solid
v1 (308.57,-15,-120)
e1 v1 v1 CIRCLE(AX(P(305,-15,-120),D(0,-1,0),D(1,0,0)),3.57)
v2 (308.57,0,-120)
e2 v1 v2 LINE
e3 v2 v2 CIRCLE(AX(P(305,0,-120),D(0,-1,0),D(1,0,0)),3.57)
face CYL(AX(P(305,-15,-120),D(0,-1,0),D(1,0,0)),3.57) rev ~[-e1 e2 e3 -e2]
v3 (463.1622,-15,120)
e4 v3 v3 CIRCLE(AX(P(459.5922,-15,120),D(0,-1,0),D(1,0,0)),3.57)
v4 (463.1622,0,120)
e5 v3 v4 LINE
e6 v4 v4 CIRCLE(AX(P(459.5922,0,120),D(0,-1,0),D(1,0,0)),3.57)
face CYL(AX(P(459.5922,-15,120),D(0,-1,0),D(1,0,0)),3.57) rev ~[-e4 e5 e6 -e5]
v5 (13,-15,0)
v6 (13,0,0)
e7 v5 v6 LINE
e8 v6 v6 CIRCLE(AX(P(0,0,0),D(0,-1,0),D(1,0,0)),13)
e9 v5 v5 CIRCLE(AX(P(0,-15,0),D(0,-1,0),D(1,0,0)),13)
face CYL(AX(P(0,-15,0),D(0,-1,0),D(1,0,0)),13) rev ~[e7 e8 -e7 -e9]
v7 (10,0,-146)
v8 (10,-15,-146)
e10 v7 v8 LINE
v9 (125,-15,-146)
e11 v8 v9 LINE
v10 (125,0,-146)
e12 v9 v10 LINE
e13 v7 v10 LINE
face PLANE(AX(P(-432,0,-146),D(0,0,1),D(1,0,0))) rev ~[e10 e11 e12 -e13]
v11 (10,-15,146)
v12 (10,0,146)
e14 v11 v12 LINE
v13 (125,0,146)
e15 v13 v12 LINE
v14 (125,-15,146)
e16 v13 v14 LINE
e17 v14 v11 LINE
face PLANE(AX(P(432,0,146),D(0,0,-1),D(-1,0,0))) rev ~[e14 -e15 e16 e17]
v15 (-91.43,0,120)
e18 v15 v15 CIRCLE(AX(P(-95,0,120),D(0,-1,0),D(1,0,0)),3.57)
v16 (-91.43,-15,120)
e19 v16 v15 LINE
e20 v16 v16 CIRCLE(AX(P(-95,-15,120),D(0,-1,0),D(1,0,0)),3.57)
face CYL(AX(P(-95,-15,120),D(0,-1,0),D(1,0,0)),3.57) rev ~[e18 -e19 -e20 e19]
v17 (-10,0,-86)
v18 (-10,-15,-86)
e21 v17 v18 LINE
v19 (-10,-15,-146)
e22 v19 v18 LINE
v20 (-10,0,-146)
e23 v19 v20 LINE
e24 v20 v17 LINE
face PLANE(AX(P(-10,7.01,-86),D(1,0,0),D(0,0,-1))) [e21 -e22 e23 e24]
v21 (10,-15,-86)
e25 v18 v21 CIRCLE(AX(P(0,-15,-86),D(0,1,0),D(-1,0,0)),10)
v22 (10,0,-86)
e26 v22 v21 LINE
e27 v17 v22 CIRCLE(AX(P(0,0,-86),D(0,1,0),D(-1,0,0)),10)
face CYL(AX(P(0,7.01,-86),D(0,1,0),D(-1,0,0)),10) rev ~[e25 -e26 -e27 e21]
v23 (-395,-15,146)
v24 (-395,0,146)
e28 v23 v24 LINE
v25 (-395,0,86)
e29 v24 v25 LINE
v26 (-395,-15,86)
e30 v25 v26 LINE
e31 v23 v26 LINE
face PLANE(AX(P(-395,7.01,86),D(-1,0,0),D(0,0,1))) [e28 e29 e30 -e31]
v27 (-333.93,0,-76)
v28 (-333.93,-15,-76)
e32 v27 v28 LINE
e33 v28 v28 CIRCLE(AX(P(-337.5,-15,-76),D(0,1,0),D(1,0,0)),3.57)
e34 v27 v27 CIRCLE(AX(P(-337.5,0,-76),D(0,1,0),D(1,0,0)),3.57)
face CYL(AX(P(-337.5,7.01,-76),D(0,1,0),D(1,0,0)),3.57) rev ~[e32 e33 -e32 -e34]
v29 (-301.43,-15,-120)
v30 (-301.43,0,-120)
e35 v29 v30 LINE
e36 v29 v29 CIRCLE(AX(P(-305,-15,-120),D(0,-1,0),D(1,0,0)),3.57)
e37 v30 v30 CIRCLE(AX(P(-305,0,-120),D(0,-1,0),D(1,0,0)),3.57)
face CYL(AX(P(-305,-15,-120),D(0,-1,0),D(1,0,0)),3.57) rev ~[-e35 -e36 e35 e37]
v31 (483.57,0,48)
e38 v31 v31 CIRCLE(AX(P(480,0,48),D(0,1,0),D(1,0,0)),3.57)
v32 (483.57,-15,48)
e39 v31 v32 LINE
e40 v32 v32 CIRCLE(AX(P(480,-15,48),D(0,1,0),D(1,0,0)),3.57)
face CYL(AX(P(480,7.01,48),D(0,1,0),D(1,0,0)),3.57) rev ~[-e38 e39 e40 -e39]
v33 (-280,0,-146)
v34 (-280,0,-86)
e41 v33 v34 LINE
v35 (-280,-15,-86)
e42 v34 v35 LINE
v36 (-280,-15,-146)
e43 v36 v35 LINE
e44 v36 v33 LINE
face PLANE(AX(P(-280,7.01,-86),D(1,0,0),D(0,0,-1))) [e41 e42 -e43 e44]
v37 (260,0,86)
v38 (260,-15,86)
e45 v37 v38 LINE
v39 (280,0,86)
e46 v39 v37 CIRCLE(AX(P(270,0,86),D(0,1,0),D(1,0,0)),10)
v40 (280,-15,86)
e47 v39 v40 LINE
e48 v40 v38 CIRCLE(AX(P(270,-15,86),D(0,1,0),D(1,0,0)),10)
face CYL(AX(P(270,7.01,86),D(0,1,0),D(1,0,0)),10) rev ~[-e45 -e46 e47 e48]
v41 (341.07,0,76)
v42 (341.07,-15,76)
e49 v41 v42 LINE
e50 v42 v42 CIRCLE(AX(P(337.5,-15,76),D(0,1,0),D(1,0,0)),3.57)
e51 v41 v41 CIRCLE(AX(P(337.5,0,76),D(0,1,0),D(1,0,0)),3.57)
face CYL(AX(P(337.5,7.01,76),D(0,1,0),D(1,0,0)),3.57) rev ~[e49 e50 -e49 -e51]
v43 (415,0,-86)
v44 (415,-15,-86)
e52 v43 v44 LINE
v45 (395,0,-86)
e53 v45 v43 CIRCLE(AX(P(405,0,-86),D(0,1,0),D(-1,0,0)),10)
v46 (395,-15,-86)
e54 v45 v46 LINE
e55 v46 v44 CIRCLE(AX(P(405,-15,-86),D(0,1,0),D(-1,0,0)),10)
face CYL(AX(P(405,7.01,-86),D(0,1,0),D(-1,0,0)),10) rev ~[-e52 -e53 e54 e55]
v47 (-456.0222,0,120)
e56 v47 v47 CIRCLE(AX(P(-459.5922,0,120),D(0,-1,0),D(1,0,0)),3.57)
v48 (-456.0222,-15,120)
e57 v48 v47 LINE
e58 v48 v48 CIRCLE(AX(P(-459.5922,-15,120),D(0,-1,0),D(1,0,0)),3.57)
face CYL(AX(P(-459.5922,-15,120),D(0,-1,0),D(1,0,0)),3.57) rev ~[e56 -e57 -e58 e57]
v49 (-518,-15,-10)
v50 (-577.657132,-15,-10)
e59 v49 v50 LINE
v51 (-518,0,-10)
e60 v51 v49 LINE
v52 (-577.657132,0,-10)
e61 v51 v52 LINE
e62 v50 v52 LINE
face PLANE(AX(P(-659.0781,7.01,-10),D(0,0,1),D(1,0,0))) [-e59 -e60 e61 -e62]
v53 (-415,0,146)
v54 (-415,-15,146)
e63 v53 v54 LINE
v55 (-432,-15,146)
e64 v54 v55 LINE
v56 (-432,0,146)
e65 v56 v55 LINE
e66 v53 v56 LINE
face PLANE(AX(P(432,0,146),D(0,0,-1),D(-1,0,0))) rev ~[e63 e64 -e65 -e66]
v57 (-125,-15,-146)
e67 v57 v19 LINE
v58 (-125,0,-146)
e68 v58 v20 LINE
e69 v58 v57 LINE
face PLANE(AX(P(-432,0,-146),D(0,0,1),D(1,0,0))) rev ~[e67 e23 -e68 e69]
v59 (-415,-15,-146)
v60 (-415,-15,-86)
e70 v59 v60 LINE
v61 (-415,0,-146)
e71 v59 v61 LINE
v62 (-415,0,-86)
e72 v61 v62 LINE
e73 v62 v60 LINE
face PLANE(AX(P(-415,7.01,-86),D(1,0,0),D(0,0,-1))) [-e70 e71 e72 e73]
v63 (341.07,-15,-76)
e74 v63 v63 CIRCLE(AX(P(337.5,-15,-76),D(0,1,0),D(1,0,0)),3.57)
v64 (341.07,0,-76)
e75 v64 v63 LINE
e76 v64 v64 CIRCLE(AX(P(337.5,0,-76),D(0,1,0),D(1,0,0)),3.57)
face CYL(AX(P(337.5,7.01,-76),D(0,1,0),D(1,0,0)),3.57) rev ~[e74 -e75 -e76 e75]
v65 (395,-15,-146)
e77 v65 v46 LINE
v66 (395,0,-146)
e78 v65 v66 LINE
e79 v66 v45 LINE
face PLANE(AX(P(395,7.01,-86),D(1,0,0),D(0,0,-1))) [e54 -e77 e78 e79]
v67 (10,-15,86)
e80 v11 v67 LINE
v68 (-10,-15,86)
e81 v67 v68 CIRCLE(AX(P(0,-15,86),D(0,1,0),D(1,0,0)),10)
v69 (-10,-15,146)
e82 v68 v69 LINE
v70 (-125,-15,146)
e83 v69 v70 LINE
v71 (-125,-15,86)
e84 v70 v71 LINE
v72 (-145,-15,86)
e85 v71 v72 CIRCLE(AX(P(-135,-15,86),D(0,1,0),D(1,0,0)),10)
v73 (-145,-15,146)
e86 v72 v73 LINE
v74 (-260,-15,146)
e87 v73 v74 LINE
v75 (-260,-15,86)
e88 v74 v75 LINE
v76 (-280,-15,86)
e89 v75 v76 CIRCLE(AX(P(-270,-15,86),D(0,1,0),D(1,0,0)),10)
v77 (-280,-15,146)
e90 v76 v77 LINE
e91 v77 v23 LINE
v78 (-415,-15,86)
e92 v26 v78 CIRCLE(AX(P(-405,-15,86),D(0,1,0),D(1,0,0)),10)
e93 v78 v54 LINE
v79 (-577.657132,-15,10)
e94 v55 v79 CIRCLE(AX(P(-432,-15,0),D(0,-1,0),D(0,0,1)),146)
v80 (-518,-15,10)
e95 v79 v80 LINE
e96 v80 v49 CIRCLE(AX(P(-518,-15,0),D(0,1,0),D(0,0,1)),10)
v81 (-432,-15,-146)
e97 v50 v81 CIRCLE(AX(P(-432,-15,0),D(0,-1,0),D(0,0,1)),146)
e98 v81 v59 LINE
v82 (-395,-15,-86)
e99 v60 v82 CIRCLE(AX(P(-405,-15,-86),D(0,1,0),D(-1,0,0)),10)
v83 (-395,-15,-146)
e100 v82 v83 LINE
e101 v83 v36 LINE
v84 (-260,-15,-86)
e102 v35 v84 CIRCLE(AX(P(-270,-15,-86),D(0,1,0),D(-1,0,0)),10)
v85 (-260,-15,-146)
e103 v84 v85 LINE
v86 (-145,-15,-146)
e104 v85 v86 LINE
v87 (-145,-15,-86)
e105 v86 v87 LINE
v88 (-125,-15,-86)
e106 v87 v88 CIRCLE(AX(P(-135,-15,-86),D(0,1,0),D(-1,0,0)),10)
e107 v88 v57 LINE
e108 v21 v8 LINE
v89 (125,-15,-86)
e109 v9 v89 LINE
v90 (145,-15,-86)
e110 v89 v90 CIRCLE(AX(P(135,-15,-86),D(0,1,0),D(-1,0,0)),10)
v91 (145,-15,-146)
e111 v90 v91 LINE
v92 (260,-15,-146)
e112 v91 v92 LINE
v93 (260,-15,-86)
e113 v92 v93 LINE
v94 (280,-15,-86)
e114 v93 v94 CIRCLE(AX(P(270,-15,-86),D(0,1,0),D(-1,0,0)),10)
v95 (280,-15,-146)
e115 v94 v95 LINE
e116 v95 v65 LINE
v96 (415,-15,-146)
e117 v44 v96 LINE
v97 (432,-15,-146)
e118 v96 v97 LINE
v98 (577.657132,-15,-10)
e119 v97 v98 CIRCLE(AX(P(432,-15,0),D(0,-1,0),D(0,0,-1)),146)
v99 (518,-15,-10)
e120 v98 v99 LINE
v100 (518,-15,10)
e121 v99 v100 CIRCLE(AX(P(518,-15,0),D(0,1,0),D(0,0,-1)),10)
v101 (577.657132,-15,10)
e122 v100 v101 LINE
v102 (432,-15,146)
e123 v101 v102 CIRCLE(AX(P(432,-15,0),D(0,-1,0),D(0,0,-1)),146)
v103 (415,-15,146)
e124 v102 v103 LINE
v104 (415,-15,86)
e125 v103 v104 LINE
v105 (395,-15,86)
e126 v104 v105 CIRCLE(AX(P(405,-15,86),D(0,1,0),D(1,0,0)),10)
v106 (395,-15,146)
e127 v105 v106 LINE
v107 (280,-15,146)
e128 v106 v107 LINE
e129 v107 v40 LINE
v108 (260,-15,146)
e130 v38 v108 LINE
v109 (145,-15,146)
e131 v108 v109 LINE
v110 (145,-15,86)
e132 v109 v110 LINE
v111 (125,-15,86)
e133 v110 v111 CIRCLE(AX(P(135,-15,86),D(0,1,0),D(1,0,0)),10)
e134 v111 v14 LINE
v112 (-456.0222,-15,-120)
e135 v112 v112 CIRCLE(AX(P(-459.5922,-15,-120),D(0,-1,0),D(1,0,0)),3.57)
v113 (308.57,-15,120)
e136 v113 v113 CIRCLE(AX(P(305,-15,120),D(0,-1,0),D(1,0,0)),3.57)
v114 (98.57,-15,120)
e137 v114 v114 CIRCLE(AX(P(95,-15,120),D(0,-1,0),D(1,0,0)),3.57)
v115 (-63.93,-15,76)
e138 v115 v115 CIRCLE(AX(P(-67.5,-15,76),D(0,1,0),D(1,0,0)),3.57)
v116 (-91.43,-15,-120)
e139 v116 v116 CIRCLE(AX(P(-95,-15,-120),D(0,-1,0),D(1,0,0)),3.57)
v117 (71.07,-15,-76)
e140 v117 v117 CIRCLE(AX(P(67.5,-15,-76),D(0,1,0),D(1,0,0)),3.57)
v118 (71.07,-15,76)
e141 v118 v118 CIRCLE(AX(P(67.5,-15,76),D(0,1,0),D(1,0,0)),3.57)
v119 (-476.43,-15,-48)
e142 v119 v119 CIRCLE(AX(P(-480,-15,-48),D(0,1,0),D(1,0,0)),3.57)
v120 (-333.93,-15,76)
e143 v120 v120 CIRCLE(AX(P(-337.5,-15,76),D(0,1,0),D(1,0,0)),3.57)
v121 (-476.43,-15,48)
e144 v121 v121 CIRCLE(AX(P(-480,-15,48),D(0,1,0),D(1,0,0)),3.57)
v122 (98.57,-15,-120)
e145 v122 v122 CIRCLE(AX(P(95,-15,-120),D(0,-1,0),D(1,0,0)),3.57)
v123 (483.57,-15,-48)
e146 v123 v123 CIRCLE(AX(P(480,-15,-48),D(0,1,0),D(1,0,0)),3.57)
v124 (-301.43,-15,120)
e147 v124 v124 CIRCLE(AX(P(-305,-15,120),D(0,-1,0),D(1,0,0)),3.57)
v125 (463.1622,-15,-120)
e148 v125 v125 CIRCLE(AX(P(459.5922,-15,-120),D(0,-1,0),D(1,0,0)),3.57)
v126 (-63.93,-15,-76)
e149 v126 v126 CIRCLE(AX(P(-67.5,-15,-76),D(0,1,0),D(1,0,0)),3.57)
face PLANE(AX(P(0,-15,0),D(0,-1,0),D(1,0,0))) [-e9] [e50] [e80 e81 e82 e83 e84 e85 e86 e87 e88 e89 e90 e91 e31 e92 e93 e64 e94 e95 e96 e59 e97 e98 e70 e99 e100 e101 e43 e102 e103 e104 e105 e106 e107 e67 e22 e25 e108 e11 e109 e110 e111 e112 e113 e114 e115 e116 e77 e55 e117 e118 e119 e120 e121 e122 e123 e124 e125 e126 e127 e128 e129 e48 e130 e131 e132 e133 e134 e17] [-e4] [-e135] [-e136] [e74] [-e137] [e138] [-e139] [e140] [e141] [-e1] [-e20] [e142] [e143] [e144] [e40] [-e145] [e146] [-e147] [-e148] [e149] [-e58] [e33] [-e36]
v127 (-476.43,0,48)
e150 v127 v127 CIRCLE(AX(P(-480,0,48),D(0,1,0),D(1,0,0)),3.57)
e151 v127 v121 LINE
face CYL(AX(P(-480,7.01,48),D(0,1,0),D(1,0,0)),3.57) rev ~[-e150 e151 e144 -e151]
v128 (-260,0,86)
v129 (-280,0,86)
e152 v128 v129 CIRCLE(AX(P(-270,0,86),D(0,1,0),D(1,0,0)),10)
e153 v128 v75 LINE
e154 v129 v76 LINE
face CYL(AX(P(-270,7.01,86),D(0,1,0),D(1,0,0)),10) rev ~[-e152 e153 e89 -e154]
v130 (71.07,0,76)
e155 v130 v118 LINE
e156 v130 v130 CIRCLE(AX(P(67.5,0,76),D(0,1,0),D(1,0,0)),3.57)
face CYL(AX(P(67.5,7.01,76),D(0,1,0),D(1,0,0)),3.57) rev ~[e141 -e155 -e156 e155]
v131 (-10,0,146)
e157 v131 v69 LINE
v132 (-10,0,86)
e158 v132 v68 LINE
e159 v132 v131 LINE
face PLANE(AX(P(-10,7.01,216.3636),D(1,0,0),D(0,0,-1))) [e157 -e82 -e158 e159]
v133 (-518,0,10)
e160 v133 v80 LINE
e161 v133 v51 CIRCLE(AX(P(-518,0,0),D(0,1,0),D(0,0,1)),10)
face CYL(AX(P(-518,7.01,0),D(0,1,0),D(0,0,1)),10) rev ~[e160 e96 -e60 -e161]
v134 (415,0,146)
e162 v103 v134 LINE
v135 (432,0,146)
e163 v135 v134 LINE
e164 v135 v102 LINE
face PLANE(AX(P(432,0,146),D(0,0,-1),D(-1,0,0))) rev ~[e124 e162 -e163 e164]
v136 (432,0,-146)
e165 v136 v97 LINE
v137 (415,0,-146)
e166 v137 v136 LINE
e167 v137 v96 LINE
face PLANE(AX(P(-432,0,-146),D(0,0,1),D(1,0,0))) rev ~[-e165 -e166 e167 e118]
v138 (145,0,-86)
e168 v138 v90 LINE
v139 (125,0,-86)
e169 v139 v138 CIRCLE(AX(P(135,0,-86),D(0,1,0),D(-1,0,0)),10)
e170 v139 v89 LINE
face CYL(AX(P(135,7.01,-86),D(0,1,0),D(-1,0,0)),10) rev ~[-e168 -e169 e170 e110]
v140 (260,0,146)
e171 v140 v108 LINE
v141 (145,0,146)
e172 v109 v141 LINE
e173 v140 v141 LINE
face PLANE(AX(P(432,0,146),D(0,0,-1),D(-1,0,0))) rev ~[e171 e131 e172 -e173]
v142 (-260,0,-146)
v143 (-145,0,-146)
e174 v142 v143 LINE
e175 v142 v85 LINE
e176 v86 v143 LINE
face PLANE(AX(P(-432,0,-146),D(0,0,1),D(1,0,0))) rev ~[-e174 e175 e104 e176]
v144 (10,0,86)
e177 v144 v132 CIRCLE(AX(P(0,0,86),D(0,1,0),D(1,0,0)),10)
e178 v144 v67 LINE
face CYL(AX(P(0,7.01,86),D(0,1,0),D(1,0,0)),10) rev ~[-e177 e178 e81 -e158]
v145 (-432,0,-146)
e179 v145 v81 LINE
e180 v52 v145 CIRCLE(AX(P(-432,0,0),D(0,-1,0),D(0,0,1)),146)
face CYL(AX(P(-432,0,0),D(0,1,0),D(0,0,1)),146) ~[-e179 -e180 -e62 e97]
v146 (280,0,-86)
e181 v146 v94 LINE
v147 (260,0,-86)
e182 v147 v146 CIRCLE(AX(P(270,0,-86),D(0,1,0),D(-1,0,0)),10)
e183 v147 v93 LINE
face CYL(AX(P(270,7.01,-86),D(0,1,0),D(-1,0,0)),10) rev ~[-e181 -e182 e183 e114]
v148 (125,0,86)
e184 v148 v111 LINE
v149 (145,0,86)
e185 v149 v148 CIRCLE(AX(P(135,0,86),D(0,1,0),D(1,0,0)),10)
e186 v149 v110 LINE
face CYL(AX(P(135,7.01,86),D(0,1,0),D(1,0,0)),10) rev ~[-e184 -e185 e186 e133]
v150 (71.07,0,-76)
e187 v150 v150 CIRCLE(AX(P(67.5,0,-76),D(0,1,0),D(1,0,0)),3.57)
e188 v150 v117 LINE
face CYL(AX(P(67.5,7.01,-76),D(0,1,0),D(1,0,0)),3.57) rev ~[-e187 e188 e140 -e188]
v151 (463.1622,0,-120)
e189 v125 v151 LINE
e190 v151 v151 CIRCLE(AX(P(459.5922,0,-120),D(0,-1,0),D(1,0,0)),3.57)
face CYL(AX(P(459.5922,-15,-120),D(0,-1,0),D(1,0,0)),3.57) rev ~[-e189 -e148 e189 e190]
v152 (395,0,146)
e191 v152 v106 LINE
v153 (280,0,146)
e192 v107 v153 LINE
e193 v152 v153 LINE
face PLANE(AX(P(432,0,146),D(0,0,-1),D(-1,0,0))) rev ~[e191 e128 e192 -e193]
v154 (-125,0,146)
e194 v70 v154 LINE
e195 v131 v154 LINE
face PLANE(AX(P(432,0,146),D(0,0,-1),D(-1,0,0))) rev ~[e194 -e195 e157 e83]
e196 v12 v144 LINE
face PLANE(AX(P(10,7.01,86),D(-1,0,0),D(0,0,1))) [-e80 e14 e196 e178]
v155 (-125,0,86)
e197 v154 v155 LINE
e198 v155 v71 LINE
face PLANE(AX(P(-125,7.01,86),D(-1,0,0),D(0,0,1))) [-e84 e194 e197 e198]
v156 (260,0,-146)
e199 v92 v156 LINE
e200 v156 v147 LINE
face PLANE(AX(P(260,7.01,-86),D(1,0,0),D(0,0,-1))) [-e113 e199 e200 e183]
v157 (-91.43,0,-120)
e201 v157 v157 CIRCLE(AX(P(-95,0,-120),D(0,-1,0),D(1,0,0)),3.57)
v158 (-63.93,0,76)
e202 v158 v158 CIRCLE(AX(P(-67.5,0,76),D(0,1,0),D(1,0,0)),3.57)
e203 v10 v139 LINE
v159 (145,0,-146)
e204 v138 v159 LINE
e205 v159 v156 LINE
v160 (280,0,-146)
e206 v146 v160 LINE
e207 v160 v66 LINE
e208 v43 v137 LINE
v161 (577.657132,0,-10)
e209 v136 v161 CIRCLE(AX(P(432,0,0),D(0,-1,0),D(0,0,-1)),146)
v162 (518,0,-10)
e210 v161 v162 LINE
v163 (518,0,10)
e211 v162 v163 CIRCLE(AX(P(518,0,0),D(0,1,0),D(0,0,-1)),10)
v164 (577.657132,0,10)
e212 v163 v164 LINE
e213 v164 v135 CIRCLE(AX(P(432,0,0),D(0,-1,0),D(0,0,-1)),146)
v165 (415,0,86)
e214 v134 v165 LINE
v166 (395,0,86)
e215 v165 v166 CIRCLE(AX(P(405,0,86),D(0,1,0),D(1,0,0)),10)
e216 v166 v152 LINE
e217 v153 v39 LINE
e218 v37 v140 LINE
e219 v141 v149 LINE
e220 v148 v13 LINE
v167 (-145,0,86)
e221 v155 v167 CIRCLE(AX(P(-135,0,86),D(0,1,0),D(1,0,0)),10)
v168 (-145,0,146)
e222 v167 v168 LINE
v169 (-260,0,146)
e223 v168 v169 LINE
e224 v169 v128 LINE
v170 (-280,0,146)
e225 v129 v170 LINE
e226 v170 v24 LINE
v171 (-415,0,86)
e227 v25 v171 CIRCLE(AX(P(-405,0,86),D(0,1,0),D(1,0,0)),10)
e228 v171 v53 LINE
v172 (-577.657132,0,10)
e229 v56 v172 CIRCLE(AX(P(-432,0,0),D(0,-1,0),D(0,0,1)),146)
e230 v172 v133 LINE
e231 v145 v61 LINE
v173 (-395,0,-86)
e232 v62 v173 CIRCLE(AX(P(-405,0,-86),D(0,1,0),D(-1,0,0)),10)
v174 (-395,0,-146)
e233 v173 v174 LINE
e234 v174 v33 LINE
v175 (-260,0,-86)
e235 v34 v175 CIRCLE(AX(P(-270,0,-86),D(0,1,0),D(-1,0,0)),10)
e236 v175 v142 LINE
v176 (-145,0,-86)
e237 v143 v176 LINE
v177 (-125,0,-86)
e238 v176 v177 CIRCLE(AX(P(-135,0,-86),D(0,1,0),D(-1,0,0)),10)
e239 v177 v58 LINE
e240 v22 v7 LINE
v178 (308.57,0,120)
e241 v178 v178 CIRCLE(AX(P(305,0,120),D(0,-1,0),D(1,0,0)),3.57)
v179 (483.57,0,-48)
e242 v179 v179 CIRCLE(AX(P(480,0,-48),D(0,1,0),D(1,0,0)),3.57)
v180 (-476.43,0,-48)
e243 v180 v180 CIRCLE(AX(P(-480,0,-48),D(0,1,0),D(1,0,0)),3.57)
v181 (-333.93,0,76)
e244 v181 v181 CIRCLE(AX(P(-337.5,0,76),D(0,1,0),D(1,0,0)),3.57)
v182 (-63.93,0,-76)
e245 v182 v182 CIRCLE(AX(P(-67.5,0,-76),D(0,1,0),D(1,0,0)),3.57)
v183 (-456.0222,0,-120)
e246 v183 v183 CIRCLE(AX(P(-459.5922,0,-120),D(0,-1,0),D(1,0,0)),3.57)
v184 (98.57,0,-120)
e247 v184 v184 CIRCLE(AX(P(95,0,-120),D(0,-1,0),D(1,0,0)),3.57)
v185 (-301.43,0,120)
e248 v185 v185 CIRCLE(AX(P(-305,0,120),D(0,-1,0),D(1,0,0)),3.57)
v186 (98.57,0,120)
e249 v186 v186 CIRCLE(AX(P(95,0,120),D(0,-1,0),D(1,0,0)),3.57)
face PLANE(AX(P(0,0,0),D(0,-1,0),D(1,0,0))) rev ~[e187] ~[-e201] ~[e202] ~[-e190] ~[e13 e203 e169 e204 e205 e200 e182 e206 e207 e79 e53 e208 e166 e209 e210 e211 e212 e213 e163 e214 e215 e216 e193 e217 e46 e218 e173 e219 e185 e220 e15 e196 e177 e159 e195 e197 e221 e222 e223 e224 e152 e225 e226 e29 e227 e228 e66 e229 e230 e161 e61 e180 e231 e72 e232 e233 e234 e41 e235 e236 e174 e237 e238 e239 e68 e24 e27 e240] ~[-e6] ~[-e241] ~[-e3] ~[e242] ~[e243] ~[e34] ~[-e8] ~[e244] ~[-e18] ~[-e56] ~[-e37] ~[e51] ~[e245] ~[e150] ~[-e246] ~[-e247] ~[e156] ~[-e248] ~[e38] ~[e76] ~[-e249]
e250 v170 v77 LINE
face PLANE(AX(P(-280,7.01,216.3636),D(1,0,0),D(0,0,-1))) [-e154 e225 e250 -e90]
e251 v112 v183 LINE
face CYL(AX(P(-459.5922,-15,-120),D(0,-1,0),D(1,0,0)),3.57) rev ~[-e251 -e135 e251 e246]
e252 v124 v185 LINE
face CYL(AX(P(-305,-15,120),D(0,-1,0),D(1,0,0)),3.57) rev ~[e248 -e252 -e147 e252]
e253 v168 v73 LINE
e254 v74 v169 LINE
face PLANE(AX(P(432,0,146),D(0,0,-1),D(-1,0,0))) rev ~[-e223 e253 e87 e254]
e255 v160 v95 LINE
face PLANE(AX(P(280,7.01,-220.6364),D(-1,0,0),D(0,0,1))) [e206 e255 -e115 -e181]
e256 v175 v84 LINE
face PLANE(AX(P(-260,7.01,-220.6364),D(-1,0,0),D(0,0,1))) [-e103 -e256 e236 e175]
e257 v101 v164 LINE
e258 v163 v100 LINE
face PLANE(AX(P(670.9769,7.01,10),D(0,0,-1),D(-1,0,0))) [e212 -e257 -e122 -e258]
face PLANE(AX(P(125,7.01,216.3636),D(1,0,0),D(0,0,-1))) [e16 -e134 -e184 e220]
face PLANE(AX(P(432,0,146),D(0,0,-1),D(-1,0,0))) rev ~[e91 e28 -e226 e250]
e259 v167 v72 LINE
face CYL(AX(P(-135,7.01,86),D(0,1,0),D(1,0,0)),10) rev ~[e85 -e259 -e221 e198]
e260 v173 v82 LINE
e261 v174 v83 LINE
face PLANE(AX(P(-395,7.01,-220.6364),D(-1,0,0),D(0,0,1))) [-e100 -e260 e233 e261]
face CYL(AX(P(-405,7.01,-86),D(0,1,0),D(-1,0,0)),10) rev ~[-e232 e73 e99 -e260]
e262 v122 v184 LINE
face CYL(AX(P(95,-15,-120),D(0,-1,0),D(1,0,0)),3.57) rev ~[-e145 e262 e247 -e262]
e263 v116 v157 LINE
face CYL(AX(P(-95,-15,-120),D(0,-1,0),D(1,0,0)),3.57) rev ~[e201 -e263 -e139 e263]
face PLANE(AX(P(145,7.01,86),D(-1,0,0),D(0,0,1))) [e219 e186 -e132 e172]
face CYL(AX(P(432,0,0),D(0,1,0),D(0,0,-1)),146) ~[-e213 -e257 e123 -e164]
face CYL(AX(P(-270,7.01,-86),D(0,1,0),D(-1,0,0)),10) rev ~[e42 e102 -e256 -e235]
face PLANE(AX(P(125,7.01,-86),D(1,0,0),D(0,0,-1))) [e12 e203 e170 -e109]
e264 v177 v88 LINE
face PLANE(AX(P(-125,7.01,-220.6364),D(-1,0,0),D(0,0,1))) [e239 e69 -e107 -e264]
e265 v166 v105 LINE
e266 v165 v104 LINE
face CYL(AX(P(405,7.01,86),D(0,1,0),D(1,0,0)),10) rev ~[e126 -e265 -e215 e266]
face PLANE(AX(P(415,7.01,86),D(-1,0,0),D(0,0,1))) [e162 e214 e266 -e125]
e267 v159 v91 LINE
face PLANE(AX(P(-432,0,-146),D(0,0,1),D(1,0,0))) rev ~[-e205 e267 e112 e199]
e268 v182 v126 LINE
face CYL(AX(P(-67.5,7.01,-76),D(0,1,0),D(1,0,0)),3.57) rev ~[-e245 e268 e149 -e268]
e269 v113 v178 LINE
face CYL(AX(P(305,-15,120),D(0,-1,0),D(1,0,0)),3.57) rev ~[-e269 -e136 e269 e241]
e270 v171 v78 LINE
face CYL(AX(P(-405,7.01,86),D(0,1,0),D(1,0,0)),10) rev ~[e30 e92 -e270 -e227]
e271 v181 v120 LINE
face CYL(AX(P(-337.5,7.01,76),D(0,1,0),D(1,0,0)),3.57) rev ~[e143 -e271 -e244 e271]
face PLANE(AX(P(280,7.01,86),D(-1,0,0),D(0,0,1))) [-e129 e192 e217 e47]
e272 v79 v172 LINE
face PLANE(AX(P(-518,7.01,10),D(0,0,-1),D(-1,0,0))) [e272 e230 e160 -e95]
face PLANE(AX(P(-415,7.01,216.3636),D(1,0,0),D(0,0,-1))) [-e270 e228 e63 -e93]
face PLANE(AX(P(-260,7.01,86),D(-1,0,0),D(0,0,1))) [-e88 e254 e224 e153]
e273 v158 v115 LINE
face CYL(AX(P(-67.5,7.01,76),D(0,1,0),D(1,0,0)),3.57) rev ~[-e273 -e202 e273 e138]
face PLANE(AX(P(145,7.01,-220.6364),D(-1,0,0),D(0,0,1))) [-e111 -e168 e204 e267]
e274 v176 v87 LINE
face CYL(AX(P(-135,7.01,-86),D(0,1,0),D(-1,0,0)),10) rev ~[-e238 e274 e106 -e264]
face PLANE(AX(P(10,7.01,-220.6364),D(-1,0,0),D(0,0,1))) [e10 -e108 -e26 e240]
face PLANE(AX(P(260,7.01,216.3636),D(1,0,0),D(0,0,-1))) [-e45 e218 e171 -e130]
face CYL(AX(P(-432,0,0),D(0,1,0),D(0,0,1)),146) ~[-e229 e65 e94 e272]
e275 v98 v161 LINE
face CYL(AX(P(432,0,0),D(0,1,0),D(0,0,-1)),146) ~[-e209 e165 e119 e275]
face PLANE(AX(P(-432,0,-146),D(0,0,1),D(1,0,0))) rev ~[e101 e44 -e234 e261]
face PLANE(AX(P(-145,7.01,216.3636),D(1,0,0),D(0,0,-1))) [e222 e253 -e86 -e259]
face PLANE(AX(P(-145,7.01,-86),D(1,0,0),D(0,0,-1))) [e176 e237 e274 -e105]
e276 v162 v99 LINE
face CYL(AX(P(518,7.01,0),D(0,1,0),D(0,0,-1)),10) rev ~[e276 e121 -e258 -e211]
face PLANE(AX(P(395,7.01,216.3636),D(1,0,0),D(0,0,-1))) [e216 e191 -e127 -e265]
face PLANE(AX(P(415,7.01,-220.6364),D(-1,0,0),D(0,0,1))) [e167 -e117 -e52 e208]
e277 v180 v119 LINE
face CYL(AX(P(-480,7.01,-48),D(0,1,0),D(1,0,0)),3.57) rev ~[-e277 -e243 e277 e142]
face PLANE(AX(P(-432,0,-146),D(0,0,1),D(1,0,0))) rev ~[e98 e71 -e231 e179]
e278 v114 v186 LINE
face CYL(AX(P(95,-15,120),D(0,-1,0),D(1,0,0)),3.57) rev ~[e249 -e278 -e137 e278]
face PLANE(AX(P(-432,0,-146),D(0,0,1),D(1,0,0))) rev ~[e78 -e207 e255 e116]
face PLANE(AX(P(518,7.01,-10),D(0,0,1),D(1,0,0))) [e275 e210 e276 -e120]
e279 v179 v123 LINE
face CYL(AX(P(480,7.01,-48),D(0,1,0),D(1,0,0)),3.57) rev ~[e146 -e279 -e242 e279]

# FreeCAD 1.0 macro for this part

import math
import FreeCAD as App
import Part
import Sketcher
Q = App.Units.Quantity

doc = App.newDocument("Part")
body = doc.addObject("PartDesign::Body", "Body")

# Sketch on XZ plane
sketch1 = body.newObject("Sketcher::SketchObject", "Sketch")
sketch1.AttachmentSupport = (doc.getObject("XZ_Plane"), [""])
sketch1.MapMode = "FlatFace"
sketch1.addGeometry(Part.ArcOfCircle(Part.Circle(App.Vector(-432, 0, 0), App.Vector(0, 0, 1), 146), math.radians(90), math.radians(270)), False)
sketch1.addGeometry(Part.LineSegment(App.Vector(-432, -146, 0), App.Vector(432, -146, 0)), False)
sketch1.addGeometry(Part.ArcOfCircle(Part.Circle(App.Vector(432, 0, 0), App.Vector(0, 0, 1), 146), math.radians(-90), math.radians(90)), False)
sketch1.addGeometry(Part.LineSegment(App.Vector(432, 146, 0), App.Vector(-432, 146, 0)), False)
sketch1.addConstraint(Sketcher.Constraint("Tangent", 0, 2, 1, 1))
sketch1.addConstraint(Sketcher.Constraint("Tangent", 1, 2, 2, 1))
sketch1.addConstraint(Sketcher.Constraint("Tangent", 2, 2, 3, 1))
sketch1.addConstraint(Sketcher.Constraint("Tangent", 3, 2, 0, 1))
sketch1.addConstraint(Sketcher.Constraint("Horizontal", 1))
sketch1.addConstraint(Sketcher.Constraint("Horizontal", 3))
sketch1.addConstraint(Sketcher.Constraint("Symmetric", 0, 3, 2, 3, -1, 1))
sketch1.addConstraint(Sketcher.Constraint("Radius", 0, Q("146 mm")))
sketch1.addConstraint(Sketcher.Constraint("DistanceX", 1, 1, 1, 2, Q("864 mm")))
pad1 = body.newObject("PartDesign::Pad", "Pad")
pad1.Profile = sketch1
pad1.Length = 15

# Sketch on XZ plane
sketch2 = body.newObject("Sketcher::SketchObject", "Sketch001")
sketch2.AttachmentSupport = (doc.getObject("XZ_Plane"), [""])
sketch2.MapMode = "FlatFace"
sketch2.AttachmentOffset = App.Placement(App.Vector(0, 0, -7.01), App.Rotation())
sketch2.addGeometry(Part.LineSegment(App.Vector(-659.1, -10, 0), App.Vector(-659.1, 10, 0)), False)
sketch2.addGeometry(Part.LineSegment(App.Vector(-659.1, 10, 0), App.Vector(-518, 10, 0)), False)
sketch2.addGeometry(Part.ArcOfCircle(Part.Circle(App.Vector(-518, 0, 0), App.Vector(0, 0, 1), 10), math.radians(-90), math.radians(90)), False)
sketch2.addGeometry(Part.LineSegment(App.Vector(-518, -10, 0), App.Vector(-659.1, -10, 0)), False)
sketch2.addGeometry(Part.ArcOfCircle(Part.Circle(App.Vector(-405, 86, 0), App.Vector(0, 0, 1), 10), math.radians(180), math.radians(360)), False)
sketch2.addGeometry(Part.LineSegment(App.Vector(-415, 86, 0), App.Vector(-415, 216.4, 0)), False)
sketch2.addGeometry(Part.LineSegment(App.Vector(-415, 216.4, 0), App.Vector(-395, 216.4, 0)), False)
sketch2.addGeometry(Part.LineSegment(App.Vector(-395, 216.4, 0), App.Vector(-395, 86, 0)), False)
sketch2.addGeometry(Part.LineSegment(App.Vector(-415, -220.6, 0), App.Vector(-415, -86, 0)), False)
sketch2.addGeometry(Part.ArcOfCircle(Part.Circle(App.Vector(-405, -86, 0), App.Vector(0, 0, 1), 10), math.radians(0), math.radians(180)), False)
sketch2.addGeometry(Part.LineSegment(App.Vector(-395, -86, 0), App.Vector(-395, -220.6, 0)), False)
sketch2.addGeometry(Part.LineSegment(App.Vector(-395, -220.6, 0), App.Vector(-415, -220.6, 0)), False)
sketch2.addGeometry(Part.ArcOfCircle(Part.Circle(App.Vector(-270, 86, 0), App.Vector(0, 0, 1), 10), math.radians(180), math.radians(360)), False)
sketch2.addGeometry(Part.LineSegment(App.Vector(-280, 86, 0), App.Vector(-280, 216.4, 0)), False)
sketch2.addGeometry(Part.LineSegment(App.Vector(-280, 216.4, 0), App.Vector(-260, 216.4, 0)), False)
sketch2.addGeometry(Part.LineSegment(App.Vector(-260, 216.4, 0), App.Vector(-260, 86, 0)), False)
sketch2.addGeometry(Part.LineSegment(App.Vector(-280, -220.6, 0), App.Vector(-280, -86, 0)), False)
sketch2.addGeometry(Part.ArcOfCircle(Part.Circle(App.Vector(-270, -86, 0), App.Vector(0, 0, 1), 10), math.radians(0), math.radians(180)), False)
sketch2.addGeometry(Part.LineSegment(App.Vector(-260, -86, 0), App.Vector(-260, -220.6, 0)), False)
sketch2.addGeometry(Part.LineSegment(App.Vector(-260, -220.6, 0), App.Vector(-280, -220.6, 0)), False)
sketch2.addGeometry(Part.ArcOfCircle(Part.Circle(App.Vector(-135, 86, 0), App.Vector(0, 0, 1), 10), math.radians(180), math.radians(360)), False)
sketch2.addGeometry(Part.LineSegment(App.Vector(-145, 86, 0), App.Vector(-145, 216.4, 0)), False)
sketch2.addGeometry(Part.LineSegment(App.Vector(-145, 216.4, 0), App.Vector(-125, 216.4, 0)), False)
sketch2.addGeometry(Part.LineSegment(App.Vector(-125, 216.4, 0), App.Vector(-125, 86, 0)), False)
sketch2.addGeometry(Part.LineSegment(App.Vector(-145, -220.6, 0), App.Vector(-145, -86, 0)), False)
sketch2.addGeometry(Part.ArcOfCircle(Part.Circle(App.Vector(-135, -86, 0), App.Vector(0, 0, 1), 10), math.radians(0), math.radians(180)), False)
sketch2.addGeometry(Part.LineSegment(App.Vector(-125, -86, 0), App.Vector(-125, -220.6, 0)), False)
sketch2.addGeometry(Part.LineSegment(App.Vector(-125, -220.6, 0), App.Vector(-145, -220.6, 0)), False)
sketch2.addGeometry(Part.ArcOfCircle(Part.Circle(App.Vector(0, 86, 0), App.Vector(0, 0, 1), 10), math.radians(180), math.radians(360)), False)
sketch2.addGeometry(Part.LineSegment(App.Vector(-10, 86, 0), App.Vector(-10, 216.4, 0)), False)
sketch2.addGeometry(Part.LineSegment(App.Vector(-10, 216.4, 0), App.Vector(10, 216.4, 0)), False)
sketch2.addGeometry(Part.LineSegment(App.Vector(10, 216.4, 0), App.Vector(10, 86, 0)), False)
sketch2.addGeometry(Part.LineSegment(App.Vector(-10, -220.6, 0), App.Vector(-10, -86, 0)), False)
sketch2.addGeometry(Part.ArcOfCircle(Part.Circle(App.Vector(0, -86, 0), App.Vector(0, 0, 1), 10), math.radians(0), math.radians(180)), False)
sketch2.addGeometry(Part.LineSegment(App.Vector(10, -86, 0), App.Vector(10, -220.6, 0)), False)
sketch2.addGeometry(Part.LineSegment(App.Vector(10, -220.6, 0), App.Vector(-10, -220.6, 0)), False)
sketch2.addGeometry(Part.ArcOfCircle(Part.Circle(App.Vector(135, 86, 0), App.Vector(0, 0, 1), 10), math.radians(180), math.radians(360)), False)
sketch2.addGeometry(Part.LineSegment(App.Vector(125, 86, 0), App.Vector(125, 216.4, 0)), False)
sketch2.addGeometry(Part.LineSegment(App.Vector(125, 216.4, 0), App.Vector(145, 216.4, 0)), False)
sketch2.addGeometry(Part.LineSegment(App.Vector(145, 216.4, 0), App.Vector(145, 86, 0)), False)
sketch2.addGeometry(Part.LineSegment(App.Vector(125, -220.6, 0), App.Vector(125, -86, 0)), False)
sketch2.addGeometry(Part.ArcOfCircle(Part.Circle(App.Vector(135, -86, 0), App.Vector(0, 0, 1), 10), math.radians(0), math.radians(180)), False)
sketch2.addGeometry(Part.LineSegment(App.Vector(145, -86, 0), App.Vector(145, -220.6, 0)), False)
sketch2.addGeometry(Part.LineSegment(App.Vector(145, -220.6, 0), App.Vector(125, -220.6, 0)), False)
sketch2.addGeometry(Part.ArcOfCircle(Part.Circle(App.Vector(270, 86, 0), App.Vector(0, 0, 1), 10), math.radians(180), math.radians(360)), False)
sketch2.addGeometry(Part.LineSegment(App.Vector(260, 86, 0), App.Vector(260, 216.4, 0)), False)
sketch2.addGeometry(Part.LineSegment(App.Vector(260, 216.4, 0), App.Vector(280, 216.4, 0)), False)
sketch2.addGeometry(Part.LineSegment(App.Vector(280, 216.4, 0), App.Vector(280, 86, 0)), False)
sketch2.addGeometry(Part.LineSegment(App.Vector(260, -220.6, 0), App.Vector(260, -86, 0)), False)
sketch2.addGeometry(Part.ArcOfCircle(Part.Circle(App.Vector(270, -86, 0), App.Vector(0, 0, 1), 10), math.radians(0), math.radians(180)), False)
sketch2.addGeometry(Part.LineSegment(App.Vector(280, -86, 0), App.Vector(280, -220.6, 0)), False)
sketch2.addGeometry(Part.LineSegment(App.Vector(280, -220.6, 0), App.Vector(260, -220.6, 0)), False)
sketch2.addGeometry(Part.ArcOfCircle(Part.Circle(App.Vector(405, 86, 0), App.Vector(0, 0, 1), 10), math.radians(180), math.radians(360)), False)
sketch2.addGeometry(Part.LineSegment(App.Vector(395, 86, 0), App.Vector(395, 216.4, 0)), False)
sketch2.addGeometry(Part.LineSegment(App.Vector(395, 216.4, 0), App.Vector(415, 216.4, 0)), False)
sketch2.addGeometry(Part.LineSegment(App.Vector(415, 216.4, 0), App.Vector(415, 86, 0)), False)
sketch2.addGeometry(Part.LineSegment(App.Vector(395, -220.6, 0), App.Vector(395, -86, 0)), False)
sketch2.addGeometry(Part.ArcOfCircle(Part.Circle(App.Vector(405, -86, 0), App.Vector(0, 0, 1), 10), math.radians(0), math.radians(180)), False)
sketch2.addGeometry(Part.LineSegment(App.Vector(415, -86, 0), App.Vector(415, -220.6, 0)), False)
sketch2.addGeometry(Part.LineSegment(App.Vector(415, -220.6, 0), App.Vector(395, -220.6, 0)), False)
sketch2.addGeometry(Part.LineSegment(App.Vector(518, 10, 0), App.Vector(671, 10, 0)), False)
sketch2.addGeometry(Part.LineSegment(App.Vector(671, 10, 0), App.Vector(671, -10, 0)), False)
sketch2.addGeometry(Part.LineSegment(App.Vector(671, -10, 0), App.Vector(518, -10, 0)), False)
sketch2.addGeometry(Part.ArcOfCircle(Part.Circle(App.Vector(518, 0, 0), App.Vector(0, 0, 1), 10), math.radians(90), math.radians(270)), False)
sketch2.addGeometry(Part.Circle(App.Vector(-480, -48, 0), App.Vector(0, 0, 1), 3.6), False)
sketch2.addGeometry(Part.Circle(App.Vector(-337.5, -76, 0), App.Vector(0, 0, 1), 3.6), False)
sketch2.addGeometry(Part.Circle(App.Vector(337.5, -76, 0), App.Vector(0, 0, 1), 3.6), False)
sketch2.addGeometry(Part.Circle(App.Vector(480, -48, 0), App.Vector(0, 0, 1), 3.6), False)
sketch2.addGeometry(Part.Circle(App.Vector(480, 48, 0), App.Vector(0, 0, 1), 3.6), False)
sketch2.addGeometry(Part.Circle(App.Vector(337.5, 76, 0), App.Vector(0, 0, 1), 3.6), False)
sketch2.addGeometry(Part.Circle(App.Vector(-337.5, 76, 0), App.Vector(0, 0, 1), 3.6), False)
sketch2.addGeometry(Part.Circle(App.Vector(-480, 48, 0), App.Vector(0, 0, 1), 3.6), False)
sketch2.addGeometry(Part.Circle(App.Vector(-67.5, -76, 0), App.Vector(0, 0, 1), 3.6), False)
sketch2.addGeometry(Part.Circle(App.Vector(67.5, -76, 0), App.Vector(0, 0, 1), 3.6), False)
sketch2.addGeometry(Part.Circle(App.Vector(67.5, 76, 0), App.Vector(0, 0, 1), 3.6), False)
sketch2.addGeometry(Part.Circle(App.Vector(-67.5, 76, 0), App.Vector(0, 0, 1), 3.6), False)
sketch2.addConstraint(Sketcher.Constraint("Coincident", 0, 2, 1, 1))
sketch2.addConstraint(Sketcher.Constraint("Tangent", 1, 2, 2, 2))
sketch2.addConstraint(Sketcher.Constraint("Tangent", 2, 1, 3, 1))
sketch2.addConstraint(Sketcher.Constraint("Coincident", 3, 2, 0, 1))
sketch2.addConstraint(Sketcher.Constraint("Tangent", 4, 1, 5, 1))
sketch2.addConstraint(Sketcher.Constraint("Coincident", 5, 2, 6, 1))
sketch2.addConstraint(Sketcher.Constraint("Coincident", 6, 2, 7, 1))
sketch2.addConstraint(Sketcher.Constraint("Tangent", 7, 2, 4, 2))
sketch2.addConstraint(Sketcher.Constraint("Tangent", 8, 2, 9, 2))
sketch2.addConstraint(Sketcher.Constraint("Tangent", 9, 1, 10, 1))
sketch2.addConstraint(Sketcher.Constraint("Coincident", 10, 2, 11, 1))
sketch2.addConstraint(Sketcher.Constraint("Coincident", 11, 2, 8, 1))
sketch2.addConstraint(Sketcher.Constraint("Tangent", 12, 1, 13, 1))
sketch2.addConstraint(Sketcher.Constraint("Coincident", 13, 2, 14, 1))
sketch2.addConstraint(Sketcher.Constraint("Coincident", 14, 2, 15, 1))
sketch2.addConstraint(Sketcher.Constraint("Tangent", 15, 2, 12, 2))
sketch2.addConstraint(Sketcher.Constraint("Tangent", 16, 2, 17, 2))
sketch2.addConstraint(Sketcher.Constraint("Tangent", 17, 1, 18, 1))
sketch2.addConstraint(Sketcher.Constraint("Coincident", 18, 2, 19, 1))
sketch2.addConstraint(Sketcher.Constraint("Coincident", 19, 2, 16, 1))
sketch2.addConstraint(Sketcher.Constraint("Tangent", 20, 1, 21, 1))
sketch2.addConstraint(Sketcher.Constraint("Coincident", 21, 2, 22, 1))
sketch2.addConstraint(Sketcher.Constraint("Coincident", 22, 2, 23, 1))
sketch2.addConstraint(Sketcher.Constraint("Tangent", 23, 2, 20, 2))
sketch2.addConstraint(Sketcher.Constraint("Tangent", 24, 2, 25, 2))
sketch2.addConstraint(Sketcher.Constraint("Tangent", 25, 1, 26, 1))
sketch2.addConstraint(Sketcher.Constraint("Coincident", 26, 2, 27, 1))
sketch2.addConstraint(Sketcher.Constraint("Coincident", 27, 2, 24, 1))
sketch2.addConstraint(Sketcher.Constraint("Tangent", 28, 1, 29, 1))
sketch2.addConstraint(Sketcher.Constraint("Coincident", 29, 2, 30, 1))
sketch2.addConstraint(Sketcher.Constraint("Coincident", 30, 2, 31, 1))
sketch2.addConstraint(Sketcher.Constraint("Tangent", 31, 2, 28, 2))
sketch2.addConstraint(Sketcher.Constraint("Tangent", 32, 2, 33, 2))
sketch2.addConstraint(Sketcher.Constraint("Tangent", 33, 1, 34, 1))
sketch2.addConstraint(Sketcher.Constraint("Coincident", 34, 2, 35, 1))
sketch2.addConstraint(Sketcher.Constraint("Coincident", 35, 2, 32, 1))
sketch2.addConstraint(Sketcher.Constraint("Tangent", 36, 1, 37, 1))
sketch2.addConstraint(Sketcher.Constraint("Coincident", 37, 2, 38, 1))
sketch2.addConstraint(Sketcher.Constraint("Coincident", 38, 2, 39, 1))
sketch2.addConstraint(Sketcher.Constraint("Tangent", 39, 2, 36, 2))
sketch2.addConstraint(Sketcher.Constraint("Tangent", 40, 2, 41, 2))
sketch2.addConstraint(Sketcher.Constraint("Tangent", 41, 1, 42, 1))
sketch2.addConstraint(Sketcher.Constraint("Coincident", 42, 2, 43, 1))
sketch2.addConstraint(Sketcher.Constraint("Coincident", 43, 2, 40, 1))
sketch2.addConstraint(Sketcher.Constraint("Tangent", 44, 1, 45, 1))
sketch2.addConstraint(Sketcher.Constraint("Coincident", 45, 2, 46, 1))
sketch2.addConstraint(Sketcher.Constraint("Coincident", 46, 2, 47, 1))
sketch2.addConstraint(Sketcher.Constraint("Tangent", 47, 2, 44, 2))
sketch2.addConstraint(Sketcher.Constraint("Tangent", 48, 2, 49, 2))
sketch2.addConstraint(Sketcher.Constraint("Tangent", 49, 1, 50, 1))
sketch2.addConstraint(Sketcher.Constraint("Coincident", 50, 2, 51, 1))
sketch2.addConstraint(Sketcher.Constraint("Coincident", 51, 2, 48, 1))
sketch2.addConstraint(Sketcher.Constraint("Tangent", 52, 1, 53, 1))
sketch2.addConstraint(Sketcher.Constraint("Coincident", 53, 2, 54, 1))
sketch2.addConstraint(Sketcher.Constraint("Coincident", 54, 2, 55, 1))
sketch2.addConstraint(Sketcher.Constraint("Tangent", 55, 2, 52, 2))
sketch2.addConstraint(Sketcher.Constraint("Tangent", 56, 2, 57, 2))
sketch2.addConstraint(Sketcher.Constraint("Tangent", 57, 1, 58, 1))
sketch2.addConstraint(Sketcher.Constraint("Coincident", 58, 2, 59, 1))
sketch2.addConstraint(Sketcher.Constraint("Coincident", 59, 2, 56, 1))
sketch2.addConstraint(Sketcher.Constraint("Coincident", 60, 2, 61, 1))
sketch2.addConstraint(Sketcher.Constraint("Coincident", 61, 2, 62, 1))
sketch2.addConstraint(Sketcher.Constraint("Tangent", 62, 2, 63, 2))
sketch2.addConstraint(Sketcher.Constraint("Tangent", 63, 1, 60, 1))
sketch2.addConstraint(Sketcher.Constraint("Vertical", 0))
sketch2.addConstraint(Sketcher.Constraint("Horizontal", 1))
sketch2.addConstraint(Sketcher.Constraint("Horizontal", 3))
sketch2.addConstraint(Sketcher.Constraint("Vertical", 5))
sketch2.addConstraint(Sketcher.Constraint("Horizontal", 6))
sketch2.addConstraint(Sketcher.Constraint("Vertical", 7))
sketch2.addConstraint(Sketcher.Constraint("Vertical", 8))
sketch2.addConstraint(Sketcher.Constraint("Vertical", 10))
sketch2.addConstraint(Sketcher.Constraint("Horizontal", 11))
sketch2.addConstraint(Sketcher.Constraint("Vertical", 13))
sketch2.addConstraint(Sketcher.Constraint("Horizontal", 14))
sketch2.addConstraint(Sketcher.Constraint("Vertical", 15))
sketch2.addConstraint(Sketcher.Constraint("Vertical", 16))
sketch2.addConstraint(Sketcher.Constraint("Vertical", 18))
sketch2.addConstraint(Sketcher.Constraint("Horizontal", 19))
sketch2.addConstraint(Sketcher.Constraint("Vertical", 21))
sketch2.addConstraint(Sketcher.Constraint("Horizontal", 22))
sketch2.addConstraint(Sketcher.Constraint("Vertical", 23))
sketch2.addConstraint(Sketcher.Constraint("Vertical", 24))
sketch2.addConstraint(Sketcher.Constraint("Vertical", 26))
sketch2.addConstraint(Sketcher.Constraint("Horizontal", 27))
sketch2.addConstraint(Sketcher.Constraint("Vertical", 29))
sketch2.addConstraint(Sketcher.Constraint("Horizontal", 30))
sketch2.addConstraint(Sketcher.Constraint("Vertical", 31))
sketch2.addConstraint(Sketcher.Constraint("Vertical", 32))
sketch2.addConstraint(Sketcher.Constraint("Vertical", 34))
sketch2.addConstraint(Sketcher.Constraint("Horizontal", 35))
sketch2.addConstraint(Sketcher.Constraint("Vertical", 37))
sketch2.addConstraint(Sketcher.Constraint("Horizontal", 38))
sketch2.addConstraint(Sketcher.Constraint("Vertical", 39))
sketch2.addConstraint(Sketcher.Constraint("Vertical", 40))
sketch2.addConstraint(Sketcher.Constraint("Vertical", 42))
sketch2.addConstraint(Sketcher.Constraint("Horizontal", 43))
sketch2.addConstraint(Sketcher.Constraint("Vertical", 45))
sketch2.addConstraint(Sketcher.Constraint("Horizontal", 46))
sketch2.addConstraint(Sketcher.Constraint("Vertical", 47))
sketch2.addConstraint(Sketcher.Constraint("Vertical", 48))
sketch2.addConstraint(Sketcher.Constraint("Vertical", 50))
sketch2.addConstraint(Sketcher.Constraint("Horizontal", 51))
sketch2.addConstraint(Sketcher.Constraint("Vertical", 53))
sketch2.addConstraint(Sketcher.Constraint("Horizontal", 54))
sketch2.addConstraint(Sketcher.Constraint("Vertical", 55))
sketch2.addConstraint(Sketcher.Constraint("Vertical", 56))
sketch2.addConstraint(Sketcher.Constraint("Vertical", 58))
sketch2.addConstraint(Sketcher.Constraint("Horizontal", 59))
sketch2.addConstraint(Sketcher.Constraint("Horizontal", 60))
sketch2.addConstraint(Sketcher.Constraint("Vertical", 61))
sketch2.addConstraint(Sketcher.Constraint("Horizontal", 62))
sketch2.addConstraint(Sketcher.Constraint("Equal", 2, 4))
sketch2.addConstraint(Sketcher.Constraint("Equal", 4, 9))
sketch2.addConstraint(Sketcher.Constraint("Equal", 9, 12))
sketch2.addConstraint(Sketcher.Constraint("Equal", 12, 17))
sketch2.addConstraint(Sketcher.Constraint("Equal", 17, 20))
sketch2.addConstraint(Sketcher.Constraint("Equal", 20, 25))
sketch2.addConstraint(Sketcher.Constraint("Equal", 25, 28))
sketch2.addConstraint(Sketcher.Constraint("Equal", 28, 33))
sketch2.addConstraint(Sketcher.Constraint("Equal", 33, 36))
sketch2.addConstraint(Sketcher.Constraint("Equal", 36, 41))
sketch2.addConstraint(Sketcher.Constraint("Equal", 41, 44))
sketch2.addConstraint(Sketcher.Constraint("Equal", 44, 49))
sketch2.addConstraint(Sketcher.Constraint("Equal", 49, 52))
sketch2.addConstraint(Sketcher.Constraint("Equal", 52, 57))
sketch2.addConstraint(Sketcher.Constraint("Equal", 57, 63))
sketch2.addConstraint(Sketcher.Constraint("Equal", 64, 65))
sketch2.addConstraint(Sketcher.Constraint("Equal", 65, 66))
sketch2.addConstraint(Sketcher.Constraint("Equal", 66, 67))
sketch2.addConstraint(Sketcher.Constraint("Equal", 67, 68))
sketch2.addConstraint(Sketcher.Constraint("Equal", 68, 69))
sketch2.addConstraint(Sketcher.Constraint("Equal", 69, 70))
sketch2.addConstraint(Sketcher.Constraint("Equal", 70, 71))
sketch2.addConstraint(Sketcher.Constraint("Equal", 71, 72))
sketch2.addConstraint(Sketcher.Constraint("Equal", 72, 73))
sketch2.addConstraint(Sketcher.Constraint("Equal", 73, 74))
sketch2.addConstraint(Sketcher.Constraint("Equal", 74, 75))
sketch2.addConstraint(Sketcher.Constraint("Symmetric", 28, 3, 33, 3, -1, 1))
sketch2.addConstraint(Sketcher.Constraint("Symmetric", 25, 3, 36, 3, -1, 1))
sketch2.addConstraint(Sketcher.Constraint("Symmetric", 20, 3, 41, 3, -1, 1))
sketch2.addConstraint(Sketcher.Constraint("Symmetric", 17, 3, 44, 3, -1, 1))
sketch2.addConstraint(Sketcher.Constraint("Symmetric", 12, 3, 49, 3, -1, 1))
sketch2.addConstraint(Sketcher.Constraint("Symmetric", 9, 3, 52, 3, -1, 1))
sketch2.addConstraint(Sketcher.Constraint("Symmetric", 4, 3, 57, 3, -1, 1))
sketch2.addConstraint(Sketcher.Constraint("Symmetric", 2, 3, 63, 3, -1, 1))
sketch2.addConstraint(Sketcher.Constraint("Symmetric", 64, 3, 68, 3, -1, 1))
sketch2.addConstraint(Sketcher.Constraint("Symmetric", 65, 3, 69, 3, -1, 1))
sketch2.addConstraint(Sketcher.Constraint("Symmetric", 66, 3, 70, 3, -1, 1))
sketch2.addConstraint(Sketcher.Constraint("Symmetric", 67, 3, 71, 3, -1, 1))
sketch2.addConstraint(Sketcher.Constraint("Symmetric", 72, 3, 74, 3, -1, 1))
sketch2.addConstraint(Sketcher.Constraint("Symmetric", 73, 3, 75, 3, -1, 1))
sketch2.addConstraint(Sketcher.Constraint("Symmetric", 20, 3, 36, 3, -2))
sketch2.addConstraint(Sketcher.Constraint("Symmetric", 12, 3, 44, 3, -2))
sketch2.addConstraint(Sketcher.Constraint("Symmetric", 4, 3, 52, 3, -2))
sketch2.addConstraint(Sketcher.Constraint("Symmetric", 65, 3, 66, 3, -2))
sketch2.addConstraint(Sketcher.Constraint("Symmetric", 64, 3, 67, 3, -2))
sketch2.addConstraint(Sketcher.Constraint("Symmetric", 72, 3, 73, 3, -2))
sketch2.addConstraint(Sketcher.Constraint("PointOnObject", 2, 3, -1))
sketch2.addConstraint(Sketcher.Constraint("PointOnObject", 28, 3, -2))
sketch2.addConstraint(Sketcher.Constraint("Horizontal", 4, 3, 12, 3))
sketch2.addConstraint(Sketcher.Constraint("Horizontal", 12, 3, 20, 3))
sketch2.addConstraint(Sketcher.Constraint("Horizontal", 20, 3, 28, 3))
sketch2.addConstraint(Sketcher.Constraint("Horizontal", 66, 3, 72, 3))
sketch2.addConstraint(Sketcher.Constraint("Horizontal", 6, 2, 13, 2))
sketch2.addConstraint(Sketcher.Constraint("Horizontal", 11, 2, 18, 2))
sketch2.addConstraint(Sketcher.Constraint("Horizontal", 14, 2, 21, 2))
sketch2.addConstraint(Sketcher.Constraint("Horizontal", 19, 2, 26, 2))
sketch2.addConstraint(Sketcher.Constraint("Horizontal", 22, 2, 29, 2))
sketch2.addConstraint(Sketcher.Constraint("Horizontal", 27, 2, 34, 2))
sketch2.addConstraint(Sketcher.Constraint("Horizontal", 30, 2, 37, 2))
sketch2.addConstraint(Sketcher.Constraint("Horizontal", 35, 2, 42, 2))
sketch2.addConstraint(Sketcher.Constraint("Horizontal", 38, 2, 45, 2))
sketch2.addConstraint(Sketcher.Constraint("Horizontal", 43, 2, 50, 2))
sketch2.addConstraint(Sketcher.Constraint("Horizontal", 46, 2, 53, 2))
sketch2.addConstraint(Sketcher.Constraint("Horizontal", 51, 2, 58, 2))
sketch2.addConstraint(Sketcher.Constraint("Radius", 2, Q("10 mm")))
sketch2.addConstraint(Sketcher.Constraint("Diameter", 64, Q("7.14 mm")))
sketch2.addConstraint(Sketcher.Constraint("DistanceX", 20, 3, -1, 1, Q("135 mm")))
sketch2.addConstraint(Sketcher.Constraint("DistanceY", 64, 3, -1, 1, Q("48 mm")))
sketch2.addConstraint(Sketcher.Constraint("DistanceY", 65, 3, -1, 1, Q("76 mm")))
sketch2.addConstraint(Sketcher.Constraint("DistanceX", 2, 3, -1, 1, Q("518 mm")))
sketch2.addConstraint(Sketcher.Constraint("DistanceX", 4, 3, -1, 1, Q("405 mm")))
sketch2.addConstraint(Sketcher.Constraint("DistanceY", -1, 1, 4, 3, Q("86 mm")))
sketch2.addConstraint(Sketcher.Constraint("DistanceX", 12, 3, -1, 1, Q("270 mm")))
sketch2.addConstraint(Sketcher.Constraint("DistanceX", 64, 3, -1, 1, Q("480 mm")))
sketch2.addConstraint(Sketcher.Constraint("DistanceX", 65, 3, -1, 1, Q("337.5 mm")))
sketch2.addConstraint(Sketcher.Constraint("DistanceX", 72, 3, -1, 1, Q("67.5 mm")))
sketch2.addConstraint(Sketcher.Constraint("DistanceX", 1, 1, 1, 2, Q("141.078 mm")))
sketch2.addConstraint(Sketcher.Constraint("DistanceX", 60, 1, 60, 2, Q("152.977 mm")))
sketch2.addConstraint(Sketcher.Constraint("DistanceY", 5, 1, 5, 2, Q("130.3636 mm")))
sketch2.addConstraint(Sketcher.Constraint("DistanceY", 8, 1, 8, 2, Q("134.6364 mm")))
pocket1 = body.newObject("PartDesign::Pocket", "Pocket")
pocket1.Profile = sketch2
pocket1.Type = "ThroughAll"
pocket1.Reversed = True

# Sketch on XZ plane
sketch3 = body.newObject("Sketcher::SketchObject", "Sketch002")
sketch3.AttachmentSupport = (doc.getObject("XZ_Plane"), [""])
sketch3.MapMode = "FlatFace"
sketch3.AttachmentOffset = App.Placement(App.Vector(0, 0, 15), App.Rotation())
sketch3.addGeometry(Part.Circle(App.Vector(-459.6, 120, 0), App.Vector(0, 0, 1), 3.6), False)
sketch3.addGeometry(Part.Circle(App.Vector(-459.6, -120, 0), App.Vector(0, 0, 1), 3.6), False)
sketch3.addGeometry(Part.Circle(App.Vector(459.6, 120, 0), App.Vector(0, 0, 1), 3.6), False)
sketch3.addGeometry(Part.Circle(App.Vector(459.6, -120, 0), App.Vector(0, 0, 1), 3.6), False)
sketch3.addGeometry(Part.Circle(App.Vector(-95, 120, 0), App.Vector(0, 0, 1), 3.6), False)
sketch3.addGeometry(Part.Circle(App.Vector(95, 120, 0), App.Vector(0, 0, 1), 3.6), False)
sketch3.addGeometry(Part.Circle(App.Vector(95, -120, 0), App.Vector(0, 0, 1), 3.6), False)
sketch3.addGeometry(Part.Circle(App.Vector(-95, -120, 0), App.Vector(0, 0, 1), 3.6), False)
sketch3.addGeometry(Part.Circle(App.Vector(0, 0, 0), App.Vector(0, 0, 1), 13), False)
sketch3.addGeometry(Part.Circle(App.Vector(-305, 120, 0), App.Vector(0, 0, 1), 3.6), False)
sketch3.addGeometry(Part.Circle(App.Vector(-305, -120, 0), App.Vector(0, 0, 1), 3.6), False)
sketch3.addGeometry(Part.Circle(App.Vector(305, 120, 0), App.Vector(0, 0, 1), 3.6), False)
sketch3.addGeometry(Part.Circle(App.Vector(305, -120, 0), App.Vector(0, 0, 1), 3.6), False)
sketch3.addConstraint(Sketcher.Constraint("Coincident", 8, 3, -1, 1))
sketch3.addConstraint(Sketcher.Constraint("Equal", 0, 1))
sketch3.addConstraint(Sketcher.Constraint("Equal", 1, 2))
sketch3.addConstraint(Sketcher.Constraint("Equal", 2, 3))
sketch3.addConstraint(Sketcher.Constraint("Equal", 3, 4))
sketch3.addConstraint(Sketcher.Constraint("Equal", 4, 5))
sketch3.addConstraint(Sketcher.Constraint("Equal", 5, 6))
sketch3.addConstraint(Sketcher.Constraint("Equal", 6, 7))
sketch3.addConstraint(Sketcher.Constraint("Equal", 7, 9))
sketch3.addConstraint(Sketcher.Constraint("Equal", 9, 10))
sketch3.addConstraint(Sketcher.Constraint("Equal", 10, 11))
sketch3.addConstraint(Sketcher.Constraint("Equal", 11, 12))
sketch3.addConstraint(Sketcher.Constraint("Symmetric", 1, 3, 2, 3, -1, 1))
sketch3.addConstraint(Sketcher.Constraint("Symmetric", 0, 3, 3, 3, -1, 1))
sketch3.addConstraint(Sketcher.Constraint("Symmetric", 4, 3, 6, 3, -1, 1))
sketch3.addConstraint(Sketcher.Constraint("Symmetric", 5, 3, 7, 3, -1, 1))
sketch3.addConstraint(Sketcher.Constraint("Symmetric", 10, 3, 11, 3, -1, 1))
sketch3.addConstraint(Sketcher.Constraint("Symmetric", 9, 3, 12, 3, -1, 1))
sketch3.addConstraint(Sketcher.Constraint("Symmetric", 0, 3, 2, 3, -2))
sketch3.addConstraint(Sketcher.Constraint("Symmetric", 4, 3, 5, 3, -2))
sketch3.addConstraint(Sketcher.Constraint("Symmetric", 9, 3, 11, 3, -2))
sketch3.addConstraint(Sketcher.Constraint("Horizontal", 2, 3, 4, 3))
sketch3.addConstraint(Sketcher.Constraint("Horizontal", 5, 3, 9, 3))
sketch3.addConstraint(Sketcher.Constraint("Diameter", 8, Q("26 mm")))
sketch3.addConstraint(Sketcher.Constraint("Diameter", 0, Q("7.14 mm")))
sketch3.addConstraint(Sketcher.Constraint("DistanceY", -1, 1, 0, 3, Q("120 mm")))
sketch3.addConstraint(Sketcher.Constraint("DistanceX", 4, 3, -1, 1, Q("95 mm")))
sketch3.addConstraint(Sketcher.Constraint("DistanceX", 9, 3, 4, 3, Q("210 mm")))
sketch3.addConstraint(Sketcher.Constraint("DistanceX", 0, 3, -1, 1, Q("459.5922 mm")))
pocket2 = body.newObject("PartDesign::Pocket", "Pocket001")
pocket2.Profile = sketch3
pocket2.Type = "ThroughAll"

doc.recompute()
